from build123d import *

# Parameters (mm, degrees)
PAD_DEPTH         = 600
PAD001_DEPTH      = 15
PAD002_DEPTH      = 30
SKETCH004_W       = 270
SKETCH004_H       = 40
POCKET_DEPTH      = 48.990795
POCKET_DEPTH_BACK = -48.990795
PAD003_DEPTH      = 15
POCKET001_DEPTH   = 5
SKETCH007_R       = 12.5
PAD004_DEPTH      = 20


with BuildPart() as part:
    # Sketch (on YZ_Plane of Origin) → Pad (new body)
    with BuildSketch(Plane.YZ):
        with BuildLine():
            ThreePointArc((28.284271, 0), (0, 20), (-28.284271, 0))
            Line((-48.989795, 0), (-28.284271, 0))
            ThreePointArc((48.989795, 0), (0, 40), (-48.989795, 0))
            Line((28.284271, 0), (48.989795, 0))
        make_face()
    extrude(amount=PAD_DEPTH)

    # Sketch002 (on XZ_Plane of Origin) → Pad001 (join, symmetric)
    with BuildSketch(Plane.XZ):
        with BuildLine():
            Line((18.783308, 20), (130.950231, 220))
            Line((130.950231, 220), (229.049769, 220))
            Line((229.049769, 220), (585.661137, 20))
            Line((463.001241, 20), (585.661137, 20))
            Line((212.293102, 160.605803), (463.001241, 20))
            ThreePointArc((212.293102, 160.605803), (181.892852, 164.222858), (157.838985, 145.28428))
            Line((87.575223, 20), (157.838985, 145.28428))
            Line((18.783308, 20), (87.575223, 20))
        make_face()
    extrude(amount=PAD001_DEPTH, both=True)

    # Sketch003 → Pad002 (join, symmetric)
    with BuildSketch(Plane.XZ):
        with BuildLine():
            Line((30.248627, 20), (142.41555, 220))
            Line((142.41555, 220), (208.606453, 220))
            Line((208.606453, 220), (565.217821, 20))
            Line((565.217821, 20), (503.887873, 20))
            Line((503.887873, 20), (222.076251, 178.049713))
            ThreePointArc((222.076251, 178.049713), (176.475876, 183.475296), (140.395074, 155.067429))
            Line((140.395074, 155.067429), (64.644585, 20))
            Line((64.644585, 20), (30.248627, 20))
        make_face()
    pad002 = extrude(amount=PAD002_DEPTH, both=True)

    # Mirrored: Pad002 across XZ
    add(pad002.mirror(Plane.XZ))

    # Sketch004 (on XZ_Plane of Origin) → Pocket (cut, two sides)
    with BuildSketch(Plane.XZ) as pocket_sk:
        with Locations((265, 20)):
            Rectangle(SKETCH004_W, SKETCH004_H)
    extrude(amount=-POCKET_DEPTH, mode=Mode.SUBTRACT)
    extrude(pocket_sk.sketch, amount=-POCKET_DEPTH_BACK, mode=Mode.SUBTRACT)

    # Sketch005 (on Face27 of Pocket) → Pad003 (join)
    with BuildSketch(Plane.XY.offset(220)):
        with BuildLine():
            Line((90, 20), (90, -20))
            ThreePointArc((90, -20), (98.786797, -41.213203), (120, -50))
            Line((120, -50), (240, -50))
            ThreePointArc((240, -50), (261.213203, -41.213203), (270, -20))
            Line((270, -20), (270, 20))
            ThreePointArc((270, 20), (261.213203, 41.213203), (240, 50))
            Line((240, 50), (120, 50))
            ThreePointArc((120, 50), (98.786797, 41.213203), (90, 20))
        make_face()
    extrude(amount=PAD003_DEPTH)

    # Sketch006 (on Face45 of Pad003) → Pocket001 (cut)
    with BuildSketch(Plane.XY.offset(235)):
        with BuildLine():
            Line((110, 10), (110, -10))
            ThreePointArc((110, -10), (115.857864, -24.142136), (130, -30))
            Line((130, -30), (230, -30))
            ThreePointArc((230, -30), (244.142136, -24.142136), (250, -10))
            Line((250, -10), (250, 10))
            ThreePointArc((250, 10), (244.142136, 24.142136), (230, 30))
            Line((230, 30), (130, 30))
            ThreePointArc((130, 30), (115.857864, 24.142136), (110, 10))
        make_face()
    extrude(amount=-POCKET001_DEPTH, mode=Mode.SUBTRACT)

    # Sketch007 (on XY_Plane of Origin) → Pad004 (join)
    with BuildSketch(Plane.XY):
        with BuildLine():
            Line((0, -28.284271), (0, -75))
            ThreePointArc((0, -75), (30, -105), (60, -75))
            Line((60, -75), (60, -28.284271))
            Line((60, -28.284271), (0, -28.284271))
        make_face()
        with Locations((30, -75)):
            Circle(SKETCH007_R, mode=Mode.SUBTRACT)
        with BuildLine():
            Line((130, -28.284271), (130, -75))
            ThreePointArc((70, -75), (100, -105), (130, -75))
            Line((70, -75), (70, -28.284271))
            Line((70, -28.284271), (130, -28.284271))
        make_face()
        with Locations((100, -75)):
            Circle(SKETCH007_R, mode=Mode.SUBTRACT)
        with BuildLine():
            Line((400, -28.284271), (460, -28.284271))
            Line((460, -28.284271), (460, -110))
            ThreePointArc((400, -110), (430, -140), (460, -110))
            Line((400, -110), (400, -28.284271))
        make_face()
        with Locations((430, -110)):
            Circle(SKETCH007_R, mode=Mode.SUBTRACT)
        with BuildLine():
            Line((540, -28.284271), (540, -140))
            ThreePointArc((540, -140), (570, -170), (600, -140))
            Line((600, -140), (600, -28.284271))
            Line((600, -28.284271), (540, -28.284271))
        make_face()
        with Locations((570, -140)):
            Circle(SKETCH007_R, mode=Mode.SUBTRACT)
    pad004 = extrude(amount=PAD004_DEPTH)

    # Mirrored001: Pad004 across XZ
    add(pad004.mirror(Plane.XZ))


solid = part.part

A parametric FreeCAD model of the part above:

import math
import FreeCAD as App
import Part
import Sketcher

V = App.Vector


def add_polygon(sketch, points):
    """Adds a closed chain of lines whose ends are joined by coincident constraints."""
    first, n = sketch.GeometryCount, len(points)
    for a, b in zip(points, points[1:] + points[:1]):
        sketch.addGeometry(Part.LineSegment(App.Vector(*a, 0), App.Vector(*b, 0)), False)
    for i in range(n):
        sketch.addConstraint(Sketcher.Constraint("Coincident", first + i, 2, first + (i + 1) % n, 1))

doc = App.newDocument("Part")
body = doc.addObject("PartDesign::Body", "Body")

sketch1 = doc.addObject("Sketcher::SketchObject", "Sketch")
body.addObject(sketch1)
sketch1.AttachmentSupport = (doc.YZ_Plane, [""])
sketch1.MapMode = "FlatFace"
sketch1.addGeometry(Part.ArcOfCircle(Part.Circle(V(0, -10, 0), V(0, 0, 1), 30), math.radians(19), math.radians(161)), False)
sketch1.addGeometry(Part.LineSegment(V(28, 0, 0), V(49, 0, 0)), False)
sketch1.addGeometry(Part.ArcOfCircle(Part.Circle(V(0, -10, 0), V(0, 0, 1), 50), math.radians(12), math.radians(168)), False)
sketch1.addGeometry(Part.LineSegment(V(-49, 0, 0), V(-28, 0, 0)), False)
sketch1.addConstraint(Sketcher.Constraint("Coincident", 0, 1, 1, 1))
sketch1.addConstraint(Sketcher.Constraint("Coincident", 1, 2, 2, 1))
sketch1.addConstraint(Sketcher.Constraint("Coincident", 2, 2, 3, 1))
sketch1.addConstraint(Sketcher.Constraint("Coincident", 3, 2, 0, 2))
sketch1.addConstraint(Sketcher.Constraint("Horizontal", 1))
sketch1.addConstraint(Sketcher.Constraint("Horizontal", 3))
sketch1.addConstraint(Sketcher.Constraint("Coincident", 2, 3, 0, 3))
sketch1.addConstraint(Sketcher.Constraint("Symmetric", 1, 2, 2, 2, -1, 1))
sketch1.addConstraint(Sketcher.Constraint("PointOnObject", 0, 3, -2))
sketch1.addConstraint(Sketcher.Constraint("Radius", 0, 30.0))
sketch1.addConstraint(Sketcher.Constraint("Radius", 2, 50.0))
sketch1.addConstraint(Sketcher.Constraint("DistanceY", 0, 3, -1, 1, 10.0))
pad1 = doc.addObject("PartDesign::Pad", "Pad")
body.addObject(pad1)
pad1.Profile = sketch1
pad1.Length = 600

sketch2 = doc.addObject("Sketcher::SketchObject", "Sketch001")
body.addObject(sketch2)
sketch2.AttachmentSupport = (doc.XZ_Plane, [""])
sketch2.MapMode = "FlatFace"
sketch2.addGeometry(Part.LineSegment(V(131, 220, 0), V(19, 20, 0)), False)
sketch2.addGeometry(Part.LineSegment(V(19, 20, 0), V(88, 20, 0)), False)
sketch2.addGeometry(Part.LineSegment(V(88, 20, 0), V(158, 145, 0)), False)
sketch2.addGeometry(Part.ArcOfCircle(Part.Circle(V(193, 126, 0), V(0, 0, 1), 40), math.radians(61), math.radians(151)), False)
sketch2.addGeometry(Part.LineSegment(V(212, 161, 0), V(463, 20, 0)), False)
sketch2.addGeometry(Part.LineSegment(V(463, 20, 0), V(586, 20, 0)), False)
sketch2.addGeometry(Part.LineSegment(V(586, 20, 0), V(229, 220, 0)), False)
sketch2.addGeometry(Part.LineSegment(V(229, 220, 0), V(131, 220, 0)), False)
sketch2.addConstraint(Sketcher.Constraint("Coincident", 0, 2, 1, 1))
sketch2.addConstraint(Sketcher.Constraint("Coincident", 1, 2, 2, 1))
sketch2.addConstraint(Sketcher.Constraint("Tangent", 2, 2, 3, 2))
sketch2.addConstraint(Sketcher.Constraint("Tangent", 3, 1, 4, 1))
sketch2.addConstraint(Sketcher.Constraint("Coincident", 4, 2, 5, 1))
sketch2.addConstraint(Sketcher.Constraint("Coincident", 5, 2, 6, 1))
sketch2.addConstraint(Sketcher.Constraint("Coincident", 6, 2, 7, 1))
sketch2.addConstraint(Sketcher.Constraint("Coincident", 7, 2, 0, 1))
sketch2.addConstraint(Sketcher.Constraint("Horizontal", 1))
sketch2.addConstraint(Sketcher.Constraint("Horizontal", 5))
sketch2.addConstraint(Sketcher.Constraint("Horizontal", 7))
sketch2.addConstraint(Sketcher.Constraint("Parallel", 0, 2))
sketch2.addConstraint(Sketcher.Constraint("Perpendicular", 2, 4))
sketch2.addConstraint(Sketcher.Constraint("Parallel", 4, 6))
sketch2.addConstraint(Sketcher.Constraint("Horizontal", 1, 2, 4, 2))
sketch2.addConstraint(Sketcher.Constraint("Radius", 3, 40.0))
sketch2.addConstraint(Sketcher.Constraint("DistanceY", -1, 1, 0, 2, 20.0))
sketch2.addConstraint(Sketcher.Constraint("DistanceY", -1, 1, 6, 2, 220.0))
sketch2.addConstraint(Sketcher.Constraint("DistanceY", 3, 3, 2, 2, 19.566298))
sketch2.addConstraint(Sketcher.Constraint("DistanceX", 1, 1, 1, 2, 68.791915))
sketch2.addConstraint(Sketcher.Constraint("DistanceX", 5, 1, 5, 2, 122.659896))
sketch2.addConstraint(Sketcher.Constraint("DistanceX", 7, 2, 7, 1, 98.099538))
sketch2.addConstraint(Sketcher.Constraint("DistanceX", -1, 1, 0, 2, 18.783308))
pad2 = doc.addObject("PartDesign::Pad", "Pad001")
body.addObject(pad2)
pad2.Profile = sketch2
pad2.Length = 30
pad2.Midplane = True

sketch3 = doc.addObject("Sketcher::SketchObject", "Sketch002")
body.addObject(sketch3)
sketch3.AttachmentSupport = (doc.XZ_Plane, [""])
sketch3.MapMode = "FlatFace"
sketch3.addGeometry(Part.LineSegment(V(142, 220, 0), V(30, 20, 0)), False)
sketch3.addGeometry(Part.LineSegment(V(30, 20, 0), V(65, 20, 0)), False)
sketch3.addGeometry(Part.LineSegment(V(65, 20, 0), V(140, 155, 0)), False)
sketch3.addGeometry(Part.ArcOfCircle(Part.Circle(V(193, 126, 0), V(0, 0, 1), 60), math.radians(61), math.radians(151)), False)
sketch3.addGeometry(Part.LineSegment(V(222, 178, 0), V(504, 20, 0)), False)
sketch3.addGeometry(Part.LineSegment(V(504, 20, 0), V(565, 20, 0)), False)
sketch3.addGeometry(Part.LineSegment(V(565, 20, 0), V(209, 220, 0)), False)
sketch3.addGeometry(Part.LineSegment(V(209, 220, 0), V(142, 220, 0)), False)
sketch3.addConstraint(Sketcher.Constraint("Coincident", 0, 2, 1, 1))
sketch3.addConstraint(Sketcher.Constraint("Coincident", 1, 2, 2, 1))
sketch3.addConstraint(Sketcher.Constraint("Tangent", 2, 2, 3, 2))
sketch3.addConstraint(Sketcher.Constraint("Tangent", 3, 1, 4, 1))
sketch3.addConstraint(Sketcher.Constraint("Coincident", 4, 2, 5, 1))
sketch3.addConstraint(Sketcher.Constraint("Coincident", 5, 2, 6, 1))
sketch3.addConstraint(Sketcher.Constraint("Coincident", 6, 2, 7, 1))
sketch3.addConstraint(Sketcher.Constraint("Coincident", 7, 2, 0, 1))
sketch3.addConstraint(Sketcher.Constraint("Horizontal", 1))
sketch3.addConstraint(Sketcher.Constraint("Horizontal", 5))
sketch3.addConstraint(Sketcher.Constraint("Horizontal", 7))
sketch3.addConstraint(Sketcher.Constraint("Parallel", 0, 2))
sketch3.addConstraint(Sketcher.Constraint("Perpendicular", 2, 4))
sketch3.addConstraint(Sketcher.Constraint("Parallel", 4, 6))
sketch3.addConstraint(Sketcher.Constraint("Horizontal", 1, 2, 4, 2))
sketch3.addConstraint(Sketcher.Constraint("Radius", 3, 60.000002))
sketch3.addConstraint(Sketcher.Constraint("DistanceY", -1, 1, 0, 2, 20.0))
sketch3.addConstraint(Sketcher.Constraint("DistanceY", -1, 1, 6, 2, 220.0))
sketch3.addConstraint(Sketcher.Constraint("DistanceX", 1, 1, 1, 2, 34.395958))
sketch3.addConstraint(Sketcher.Constraint("DistanceX", 2, 2, 4, 2, 363.492799))
sketch3.addConstraint(Sketcher.Constraint("DistanceX", 6, 2, 3, 1, 13.469798))
sketch3.addConstraint(Sketcher.Constraint("DistanceX", 7, 2, 3, 1, 79.660701))
sketch3.addConstraint(Sketcher.Constraint("DistanceX", -1, 1, 3, 1, 222.076251))
pad3 = doc.addObject("PartDesign::Pad", "Pad002")
body.addObject(pad3)
pad3.Profile = sketch3
pad3.Length = 60
pad3.Midplane = True
doc.recompute()

mirrored = doc.addObject("PartDesign::Mirrored", "Mirrored")
body.addObject(mirrored)
mirrored.Originals = [pad3]
mirrored.MirrorPlane = (doc.XZ_Plane, [""])
body.Tip = mirrored

sketch4 = doc.addObject("Sketcher::SketchObject", "Sketch003")
body.addObject(sketch4)
sketch4.AttachmentSupport = (doc.XZ_Plane, [""])
sketch4.MapMode = "FlatFace"
add_polygon(sketch4, [(130, 40), (130, 0), (400, 0), (400, 40)])
sketch4.addConstraint(Sketcher.Constraint("Vertical", 0))
sketch4.addConstraint(Sketcher.Constraint("Horizontal", 1))
sketch4.addConstraint(Sketcher.Constraint("Vertical", 2))
sketch4.addConstraint(Sketcher.Constraint("Horizontal", 3))
sketch4.addConstraint(Sketcher.Constraint("PointOnObject", 0, 2, -1))
sketch4.addConstraint(Sketcher.Constraint("DistanceX", 1, 1, 1, 2, 270.0))
sketch4.addConstraint(Sketcher.Constraint("DistanceY", 0, 2, 0, 1, 40.0))
sketch4.addConstraint(Sketcher.Constraint("DistanceX", -1, 1, 0, 2, 130.0))
pocket1 = doc.addObject("PartDesign::Pocket", "Pocket")
body.addObject(pocket1)
pocket1.Profile = sketch4
pocket1.Type = "ThroughAll"
pocket1.Midplane = True

sketch5 = doc.addObject("Sketcher::SketchObject", "Sketch004")
body.addObject(sketch5)
sketch5.AttachmentSupport = (doc.XY_Plane, [""])
sketch5.MapMode = "FlatFace"
sketch5.AttachmentOffset = App.Placement(V(0, 0, 220), App.Rotation())
sketch5.addGeometry(Part.LineSegment(V(90, 20, 0), V(90, -20, 0)), False)
sketch5.addGeometry(Part.ArcOfCircle(Part.Circle(V(120, -20, 0), V(0, 0, 1), 30), math.radians(-180), math.radians(-90)), False)
sketch5.addGeometry(Part.LineSegment(V(120, -50, 0), V(240, -50, 0)), False)
sketch5.addGeometry(Part.ArcOfCircle(Part.Circle(V(240, -20, 0), V(0, 0, 1), 30), math.radians(-90), math.radians(0)), False)
sketch5.addGeometry(Part.LineSegment(V(270, -20, 0), V(270, 20, 0)), False)
sketch5.addGeometry(Part.ArcOfCircle(Part.Circle(V(240, 20, 0), V(0, 0, 1), 30), math.radians(0), math.radians(90)), False)
sketch5.addGeometry(Part.LineSegment(V(240, 50, 0), V(120, 50, 0)), False)
sketch5.addGeometry(Part.ArcOfCircle(Part.Circle(V(120, 20, 0), V(0, 0, 1), 30), math.radians(90), math.radians(180)), False)
sketch5.addConstraint(Sketcher.Constraint("Tangent", 0, 2, 1, 1))
sketch5.addConstraint(Sketcher.Constraint("Tangent", 1, 2, 2, 1))
sketch5.addConstraint(Sketcher.Constraint("Tangent", 2, 2, 3, 1))
sketch5.addConstraint(Sketcher.Constraint("Tangent", 3, 2, 4, 1))
sketch5.addConstraint(Sketcher.Constraint("Tangent", 4, 2, 5, 1))
sketch5.addConstraint(Sketcher.Constraint("Tangent", 5, 2, 6, 1))
sketch5.addConstraint(Sketcher.Constraint("Tangent", 6, 2, 7, 1))
sketch5.addConstraint(Sketcher.Constraint("Tangent", 7, 2, 0, 1))
sketch5.addConstraint(Sketcher.Constraint("Vertical", 0))
sketch5.addConstraint(Sketcher.Constraint("Horizontal", 2))
sketch5.addConstraint(Sketcher.Constraint("Vertical", 4))
sketch5.addConstraint(Sketcher.Constraint("Horizontal", 6))
sketch5.addConstraint(Sketcher.Constraint("Equal", 1, 3))
sketch5.addConstraint(Sketcher.Constraint("Equal", 3, 5))
sketch5.addConstraint(Sketcher.Constraint("Equal", 5, 7))
sketch5.addConstraint(Sketcher.Constraint("Radius", 1, 30.000001))
sketch5.addConstraint(Sketcher.Constraint("DistanceX", 2, 1, 2, 2, 120.0))
sketch5.addConstraint(Sketcher.Constraint("DistanceY", 0, 2, 0, 1, 40.0))
sketch5.addConstraint(Sketcher.Constraint("DistanceX", -1, 1, 1, 3, 120.000001))
sketch5.addConstraint(Sketcher.Constraint("DistanceY", 1, 3, -1, 1, 19.999999))
pad4 = doc.addObject("PartDesign::Pad", "Pad003")
body.addObject(pad4)
pad4.Profile = sketch5
pad4.Length = 15

sketch6 = doc.addObject("Sketcher::SketchObject", "Sketch005")
body.addObject(sketch6)
sketch6.AttachmentSupport = (doc.XY_Plane, [""])
sketch6.MapMode = "FlatFace"
sketch6.AttachmentOffset = App.Placement(V(0, 0, 235), App.Rotation())
sketch6.addGeometry(Part.LineSegment(V(110, 10, 0), V(110, -10, 0)), False)
sketch6.addGeometry(Part.ArcOfCircle(Part.Circle(V(130, -10, 0), V(0, 0, 1), 20), math.radians(180), math.radians(270)), False)
sketch6.addGeometry(Part.LineSegment(V(130, -30, 0), V(230, -30, 0)), False)
sketch6.addGeometry(Part.ArcOfCircle(Part.Circle(V(230, -10, 0), V(0, 0, 1), 20), math.radians(-90), math.radians(0)), False)
sketch6.addGeometry(Part.LineSegment(V(250, -10, 0), V(250, 10, 0)), False)
sketch6.addGeometry(Part.ArcOfCircle(Part.Circle(V(230, 10, 0), V(0, 0, 1), 20), math.radians(0), math.radians(90)), False)
sketch6.addGeometry(Part.LineSegment(V(230, 30, 0), V(130, 30, 0)), False)
sketch6.addGeometry(Part.ArcOfCircle(Part.Circle(V(130, 10, 0), V(0, 0, 1), 20), math.radians(90), math.radians(180)), False)
sketch6.addConstraint(Sketcher.Constraint("Tangent", 0, 2, 1, 1))
sketch6.addConstraint(Sketcher.Constraint("Tangent", 1, 2, 2, 1))
sketch6.addConstraint(Sketcher.Constraint("Tangent", 2, 2, 3, 1))
sketch6.addConstraint(Sketcher.Constraint("Tangent", 3, 2, 4, 1))
sketch6.addConstraint(Sketcher.Constraint("Tangent", 4, 2, 5, 1))
sketch6.addConstraint(Sketcher.Constraint("Tangent", 5, 2, 6, 1))
sketch6.addConstraint(Sketcher.Constraint("Tangent", 6, 2, 7, 1))
sketch6.addConstraint(Sketcher.Constraint("Tangent", 7, 2, 0, 1))
sketch6.addConstraint(Sketcher.Constraint("Vertical", 0))
sketch6.addConstraint(Sketcher.Constraint("Horizontal", 2))
sketch6.addConstraint(Sketcher.Constraint("Vertical", 4))
sketch6.addConstraint(Sketcher.Constraint("Horizontal", 6))
sketch6.addConstraint(Sketcher.Constraint("Equal", 1, 3))
sketch6.addConstraint(Sketcher.Constraint("Equal", 3, 5))
sketch6.addConstraint(Sketcher.Constraint("Equal", 5, 7))
sketch6.addConstraint(Sketcher.Constraint("Radius", 1, 19.999999))
sketch6.addConstraint(Sketcher.Constraint("DistanceX", 2, 1, 2, 2, 100.0))
sketch6.addConstraint(Sketcher.Constraint("DistanceY", 0, 2, 0, 1, 20.0))
sketch6.addConstraint(Sketcher.Constraint("DistanceX", -1, 1, 1, 3, 129.999999))
sketch6.addConstraint(Sketcher.Constraint("DistanceY", 1, 3, -1, 1, 10.000001))
pocket2 = doc.addObject("PartDesign::Pocket", "Pocket001")
body.addObject(pocket2)
pocket2.Profile = sketch6
pocket2.Length = 5

sketch7 = doc.addObject("Sketcher::SketchObject", "Sketch006")
body.addObject(sketch7)
sketch7.AttachmentSupport = (doc.XY_Plane, [""])
sketch7.MapMode = "FlatFace"
sketch7.addGeometry(Part.LineSegment(V(0, -28, 0), V(0, -75, 0)), False)
sketch7.addGeometry(Part.ArcOfCircle(Part.Circle(V(30, -75, 0), V(0, 0, 1), 30), math.radians(180), math.radians(360)), False)
sketch7.addGeometry(Part.LineSegment(V(60, -75, 0), V(60, -28, 0)), False)
sketch7.addGeometry(Part.LineSegment(V(60, -28, 0), V(0, -28, 0)), False)
sketch7.addGeometry(Part.Circle(V(30, -75, 0), V(0, 0, 1), 12), False)
sketch7.addGeometry(Part.LineSegment(V(130, -75, 0), V(130, -28, 0)), False)
sketch7.addGeometry(Part.LineSegment(V(130, -28, 0), V(70, -28, 0)), False)
sketch7.addGeometry(Part.LineSegment(V(70, -28, 0), V(70, -75, 0)), False)
sketch7.addGeometry(Part.ArcOfCircle(Part.Circle(V(100, -75, 0), V(0, 0, 1), 30), math.radians(180), math.radians(360)), False)
sketch7.addGeometry(Part.Circle(V(100, -75, 0), V(0, 0, 1), 12), False)
sketch7.addGeometry(Part.LineSegment(V(460, -28, 0), V(400, -28, 0)), False)
sketch7.addGeometry(Part.LineSegment(V(400, -28, 0), V(400, -110, 0)), False)
sketch7.addGeometry(Part.ArcOfCircle(Part.Circle(V(430, -110, 0), V(0, 0, 1), 30), math.radians(180), math.radians(360)), False)
sketch7.addGeometry(Part.LineSegment(V(460, -110, 0), V(460, -28, 0)), False)
sketch7.addGeometry(Part.Circle(V(430, -110, 0), V(0, 0, 1), 12), False)
sketch7.addGeometry(Part.LineSegment(V(540, -28, 0), V(540, -140, 0)), False)
sketch7.addGeometry(Part.ArcOfCircle(Part.Circle(V(570, -140, 0), V(0, 0, 1), 30), math.radians(180), math.radians(360)), False)
sketch7.addGeometry(Part.LineSegment(V(600, -140, 0), V(600, -28, 0)), False)
sketch7.addGeometry(Part.LineSegment(V(600, -28, 0), V(540, -28, 0)), False)
sketch7.addGeometry(Part.Circle(V(570, -140, 0), V(0, 0, 1), 12), False)
sketch7.addConstraint(Sketcher.Constraint("Tangent", 0, 2, 1, 1))
sketch7.addConstraint(Sketcher.Constraint("Tangent", 1, 2, 2, 1))
sketch7.addConstraint(Sketcher.Constraint("Coincident", 2, 2, 3, 1))
sketch7.addConstraint(Sketcher.Constraint("Coincident", 3, 2, 0, 1))
sketch7.addConstraint(Sketcher.Constraint("Coincident", 5, 2, 6, 1))
sketch7.addConstraint(Sketcher.Constraint("Coincident", 6, 2, 7, 1))
sketch7.addConstraint(Sketcher.Constraint("Tangent", 7, 2, 8, 1))
sketch7.addConstraint(Sketcher.Constraint("Tangent", 8, 2, 5, 1))
sketch7.addConstraint(Sketcher.Constraint("Coincident", 10, 2, 11, 1))
sketch7.addConstraint(Sketcher.Constraint("Tangent", 11, 2, 12, 1))
sketch7.addConstraint(Sketcher.Constraint("Tangent", 12, 2, 13, 1))
sketch7.addConstraint(Sketcher.Constraint("Coincident", 13, 2, 10, 1))
sketch7.addConstraint(Sketcher.Constraint("Tangent", 15, 2, 16, 1))
sketch7.addConstraint(Sketcher.Constraint("Tangent", 16, 2, 17, 1))
sketch7.addConstraint(Sketcher.Constraint("Coincident", 17, 2, 18, 1))
sketch7.addConstraint(Sketcher.Constraint("Coincident", 18, 2, 15, 1))
sketch7.addConstraint(Sketcher.Constraint("Vertical", 0))
sketch7.addConstraint(Sketcher.Constraint("Vertical", 2))
sketch7.addConstraint(Sketcher.Constraint("Horizontal", 3))
sketch7.addConstraint(Sketcher.Constraint("Vertical", 5))
sketch7.addConstraint(Sketcher.Constraint("Horizontal", 6))
sketch7.addConstraint(Sketcher.Constraint("Vertical", 7))
sketch7.addConstraint(Sketcher.Constraint("Horizontal", 10))
sketch7.addConstraint(Sketcher.Constraint("Vertical", 11))
sketch7.addConstraint(Sketcher.Constraint("Vertical", 13))
sketch7.addConstraint(Sketcher.Constraint("Vertical", 15))
sketch7.addConstraint(Sketcher.Constraint("Vertical", 17))
sketch7.addConstraint(Sketcher.Constraint("Horizontal", 18))
sketch7.addConstraint(Sketcher.Constraint("Coincident", 4, 3, 1, 3))
sketch7.addConstraint(Sketcher.Constraint("Coincident", 9, 3, 8, 3))
sketch7.addConstraint(Sketcher.Constraint("Coincident", 14, 3, 12, 3))
sketch7.addConstraint(Sketcher.Constraint("Coincident", 19, 3, 16, 3))
sketch7.addConstraint(Sketcher.Constraint("Equal", 1, 8))
sketch7.addConstraint(Sketcher.Constraint("Equal", 4, 9))
sketch7.addConstraint(Sketcher.Constraint("Equal", 8, 12))
sketch7.addConstraint(Sketcher.Constraint("Equal", 9, 14))
sketch7.addConstraint(Sketcher.Constraint("Equal", 12, 16))
sketch7.addConstraint(Sketcher.Constraint("Equal", 14, 19))
sketch7.addConstraint(Sketcher.Constraint("PointOnObject", 0, 2, -2))
sketch7.addConstraint(Sketcher.Constraint("Horizontal", 4, 3, 8, 3))
sketch7.addConstraint(Sketcher.Constraint("Horizontal", 3, 2, 5, 2))
sketch7.addConstraint(Sketcher.Constraint("Horizontal", 6, 2, 10, 2))
sketch7.addConstraint(Sketcher.Constraint("Horizontal", 13, 2, 17, 2))
sketch7.addConstraint(Sketcher.Constraint("Diameter", 4, 25.0))
sketch7.addConstraint(Sketcher.Constraint("Radius", 1, 30.0))
sketch7.addConstraint(Sketcher.Constraint("DistanceY", 1, 3, -1, 1, 75.0))
sketch7.addConstraint(Sketcher.Constraint("DistanceX", -1, 1, 8, 3, 100.0))
sketch7.addConstraint(Sketcher.Constraint("DistanceX", -1, 1, 12, 3, 430.0))
sketch7.addConstraint(Sketcher.Constraint("DistanceY", 12, 3, -1, 1, 110.0))
sketch7.addConstraint(Sketcher.Constraint("DistanceX", -1, 1, 16, 3, 570.0))
sketch7.addConstraint(Sketcher.Constraint("DistanceY", 16, 3, -1, 1, 140.0))
sketch7.addConstraint(Sketcher.Constraint("DistanceY", 0, 2, 0, 1, 46.715729))
pad5 = doc.addObject("PartDesign::Pad", "Pad004")
body.addObject(pad5)
pad5.Profile = sketch7
pad5.Length = 20
doc.recompute()

mirrored2 = doc.addObject("PartDesign::Mirrored", "Mirrored001")
body.addObject(mirrored2)
mirrored2.Originals = [pad5]
mirrored2.MirrorPlane = (doc.XZ_Plane, [""])
body.Tip = mirrored2

doc.recompute()
